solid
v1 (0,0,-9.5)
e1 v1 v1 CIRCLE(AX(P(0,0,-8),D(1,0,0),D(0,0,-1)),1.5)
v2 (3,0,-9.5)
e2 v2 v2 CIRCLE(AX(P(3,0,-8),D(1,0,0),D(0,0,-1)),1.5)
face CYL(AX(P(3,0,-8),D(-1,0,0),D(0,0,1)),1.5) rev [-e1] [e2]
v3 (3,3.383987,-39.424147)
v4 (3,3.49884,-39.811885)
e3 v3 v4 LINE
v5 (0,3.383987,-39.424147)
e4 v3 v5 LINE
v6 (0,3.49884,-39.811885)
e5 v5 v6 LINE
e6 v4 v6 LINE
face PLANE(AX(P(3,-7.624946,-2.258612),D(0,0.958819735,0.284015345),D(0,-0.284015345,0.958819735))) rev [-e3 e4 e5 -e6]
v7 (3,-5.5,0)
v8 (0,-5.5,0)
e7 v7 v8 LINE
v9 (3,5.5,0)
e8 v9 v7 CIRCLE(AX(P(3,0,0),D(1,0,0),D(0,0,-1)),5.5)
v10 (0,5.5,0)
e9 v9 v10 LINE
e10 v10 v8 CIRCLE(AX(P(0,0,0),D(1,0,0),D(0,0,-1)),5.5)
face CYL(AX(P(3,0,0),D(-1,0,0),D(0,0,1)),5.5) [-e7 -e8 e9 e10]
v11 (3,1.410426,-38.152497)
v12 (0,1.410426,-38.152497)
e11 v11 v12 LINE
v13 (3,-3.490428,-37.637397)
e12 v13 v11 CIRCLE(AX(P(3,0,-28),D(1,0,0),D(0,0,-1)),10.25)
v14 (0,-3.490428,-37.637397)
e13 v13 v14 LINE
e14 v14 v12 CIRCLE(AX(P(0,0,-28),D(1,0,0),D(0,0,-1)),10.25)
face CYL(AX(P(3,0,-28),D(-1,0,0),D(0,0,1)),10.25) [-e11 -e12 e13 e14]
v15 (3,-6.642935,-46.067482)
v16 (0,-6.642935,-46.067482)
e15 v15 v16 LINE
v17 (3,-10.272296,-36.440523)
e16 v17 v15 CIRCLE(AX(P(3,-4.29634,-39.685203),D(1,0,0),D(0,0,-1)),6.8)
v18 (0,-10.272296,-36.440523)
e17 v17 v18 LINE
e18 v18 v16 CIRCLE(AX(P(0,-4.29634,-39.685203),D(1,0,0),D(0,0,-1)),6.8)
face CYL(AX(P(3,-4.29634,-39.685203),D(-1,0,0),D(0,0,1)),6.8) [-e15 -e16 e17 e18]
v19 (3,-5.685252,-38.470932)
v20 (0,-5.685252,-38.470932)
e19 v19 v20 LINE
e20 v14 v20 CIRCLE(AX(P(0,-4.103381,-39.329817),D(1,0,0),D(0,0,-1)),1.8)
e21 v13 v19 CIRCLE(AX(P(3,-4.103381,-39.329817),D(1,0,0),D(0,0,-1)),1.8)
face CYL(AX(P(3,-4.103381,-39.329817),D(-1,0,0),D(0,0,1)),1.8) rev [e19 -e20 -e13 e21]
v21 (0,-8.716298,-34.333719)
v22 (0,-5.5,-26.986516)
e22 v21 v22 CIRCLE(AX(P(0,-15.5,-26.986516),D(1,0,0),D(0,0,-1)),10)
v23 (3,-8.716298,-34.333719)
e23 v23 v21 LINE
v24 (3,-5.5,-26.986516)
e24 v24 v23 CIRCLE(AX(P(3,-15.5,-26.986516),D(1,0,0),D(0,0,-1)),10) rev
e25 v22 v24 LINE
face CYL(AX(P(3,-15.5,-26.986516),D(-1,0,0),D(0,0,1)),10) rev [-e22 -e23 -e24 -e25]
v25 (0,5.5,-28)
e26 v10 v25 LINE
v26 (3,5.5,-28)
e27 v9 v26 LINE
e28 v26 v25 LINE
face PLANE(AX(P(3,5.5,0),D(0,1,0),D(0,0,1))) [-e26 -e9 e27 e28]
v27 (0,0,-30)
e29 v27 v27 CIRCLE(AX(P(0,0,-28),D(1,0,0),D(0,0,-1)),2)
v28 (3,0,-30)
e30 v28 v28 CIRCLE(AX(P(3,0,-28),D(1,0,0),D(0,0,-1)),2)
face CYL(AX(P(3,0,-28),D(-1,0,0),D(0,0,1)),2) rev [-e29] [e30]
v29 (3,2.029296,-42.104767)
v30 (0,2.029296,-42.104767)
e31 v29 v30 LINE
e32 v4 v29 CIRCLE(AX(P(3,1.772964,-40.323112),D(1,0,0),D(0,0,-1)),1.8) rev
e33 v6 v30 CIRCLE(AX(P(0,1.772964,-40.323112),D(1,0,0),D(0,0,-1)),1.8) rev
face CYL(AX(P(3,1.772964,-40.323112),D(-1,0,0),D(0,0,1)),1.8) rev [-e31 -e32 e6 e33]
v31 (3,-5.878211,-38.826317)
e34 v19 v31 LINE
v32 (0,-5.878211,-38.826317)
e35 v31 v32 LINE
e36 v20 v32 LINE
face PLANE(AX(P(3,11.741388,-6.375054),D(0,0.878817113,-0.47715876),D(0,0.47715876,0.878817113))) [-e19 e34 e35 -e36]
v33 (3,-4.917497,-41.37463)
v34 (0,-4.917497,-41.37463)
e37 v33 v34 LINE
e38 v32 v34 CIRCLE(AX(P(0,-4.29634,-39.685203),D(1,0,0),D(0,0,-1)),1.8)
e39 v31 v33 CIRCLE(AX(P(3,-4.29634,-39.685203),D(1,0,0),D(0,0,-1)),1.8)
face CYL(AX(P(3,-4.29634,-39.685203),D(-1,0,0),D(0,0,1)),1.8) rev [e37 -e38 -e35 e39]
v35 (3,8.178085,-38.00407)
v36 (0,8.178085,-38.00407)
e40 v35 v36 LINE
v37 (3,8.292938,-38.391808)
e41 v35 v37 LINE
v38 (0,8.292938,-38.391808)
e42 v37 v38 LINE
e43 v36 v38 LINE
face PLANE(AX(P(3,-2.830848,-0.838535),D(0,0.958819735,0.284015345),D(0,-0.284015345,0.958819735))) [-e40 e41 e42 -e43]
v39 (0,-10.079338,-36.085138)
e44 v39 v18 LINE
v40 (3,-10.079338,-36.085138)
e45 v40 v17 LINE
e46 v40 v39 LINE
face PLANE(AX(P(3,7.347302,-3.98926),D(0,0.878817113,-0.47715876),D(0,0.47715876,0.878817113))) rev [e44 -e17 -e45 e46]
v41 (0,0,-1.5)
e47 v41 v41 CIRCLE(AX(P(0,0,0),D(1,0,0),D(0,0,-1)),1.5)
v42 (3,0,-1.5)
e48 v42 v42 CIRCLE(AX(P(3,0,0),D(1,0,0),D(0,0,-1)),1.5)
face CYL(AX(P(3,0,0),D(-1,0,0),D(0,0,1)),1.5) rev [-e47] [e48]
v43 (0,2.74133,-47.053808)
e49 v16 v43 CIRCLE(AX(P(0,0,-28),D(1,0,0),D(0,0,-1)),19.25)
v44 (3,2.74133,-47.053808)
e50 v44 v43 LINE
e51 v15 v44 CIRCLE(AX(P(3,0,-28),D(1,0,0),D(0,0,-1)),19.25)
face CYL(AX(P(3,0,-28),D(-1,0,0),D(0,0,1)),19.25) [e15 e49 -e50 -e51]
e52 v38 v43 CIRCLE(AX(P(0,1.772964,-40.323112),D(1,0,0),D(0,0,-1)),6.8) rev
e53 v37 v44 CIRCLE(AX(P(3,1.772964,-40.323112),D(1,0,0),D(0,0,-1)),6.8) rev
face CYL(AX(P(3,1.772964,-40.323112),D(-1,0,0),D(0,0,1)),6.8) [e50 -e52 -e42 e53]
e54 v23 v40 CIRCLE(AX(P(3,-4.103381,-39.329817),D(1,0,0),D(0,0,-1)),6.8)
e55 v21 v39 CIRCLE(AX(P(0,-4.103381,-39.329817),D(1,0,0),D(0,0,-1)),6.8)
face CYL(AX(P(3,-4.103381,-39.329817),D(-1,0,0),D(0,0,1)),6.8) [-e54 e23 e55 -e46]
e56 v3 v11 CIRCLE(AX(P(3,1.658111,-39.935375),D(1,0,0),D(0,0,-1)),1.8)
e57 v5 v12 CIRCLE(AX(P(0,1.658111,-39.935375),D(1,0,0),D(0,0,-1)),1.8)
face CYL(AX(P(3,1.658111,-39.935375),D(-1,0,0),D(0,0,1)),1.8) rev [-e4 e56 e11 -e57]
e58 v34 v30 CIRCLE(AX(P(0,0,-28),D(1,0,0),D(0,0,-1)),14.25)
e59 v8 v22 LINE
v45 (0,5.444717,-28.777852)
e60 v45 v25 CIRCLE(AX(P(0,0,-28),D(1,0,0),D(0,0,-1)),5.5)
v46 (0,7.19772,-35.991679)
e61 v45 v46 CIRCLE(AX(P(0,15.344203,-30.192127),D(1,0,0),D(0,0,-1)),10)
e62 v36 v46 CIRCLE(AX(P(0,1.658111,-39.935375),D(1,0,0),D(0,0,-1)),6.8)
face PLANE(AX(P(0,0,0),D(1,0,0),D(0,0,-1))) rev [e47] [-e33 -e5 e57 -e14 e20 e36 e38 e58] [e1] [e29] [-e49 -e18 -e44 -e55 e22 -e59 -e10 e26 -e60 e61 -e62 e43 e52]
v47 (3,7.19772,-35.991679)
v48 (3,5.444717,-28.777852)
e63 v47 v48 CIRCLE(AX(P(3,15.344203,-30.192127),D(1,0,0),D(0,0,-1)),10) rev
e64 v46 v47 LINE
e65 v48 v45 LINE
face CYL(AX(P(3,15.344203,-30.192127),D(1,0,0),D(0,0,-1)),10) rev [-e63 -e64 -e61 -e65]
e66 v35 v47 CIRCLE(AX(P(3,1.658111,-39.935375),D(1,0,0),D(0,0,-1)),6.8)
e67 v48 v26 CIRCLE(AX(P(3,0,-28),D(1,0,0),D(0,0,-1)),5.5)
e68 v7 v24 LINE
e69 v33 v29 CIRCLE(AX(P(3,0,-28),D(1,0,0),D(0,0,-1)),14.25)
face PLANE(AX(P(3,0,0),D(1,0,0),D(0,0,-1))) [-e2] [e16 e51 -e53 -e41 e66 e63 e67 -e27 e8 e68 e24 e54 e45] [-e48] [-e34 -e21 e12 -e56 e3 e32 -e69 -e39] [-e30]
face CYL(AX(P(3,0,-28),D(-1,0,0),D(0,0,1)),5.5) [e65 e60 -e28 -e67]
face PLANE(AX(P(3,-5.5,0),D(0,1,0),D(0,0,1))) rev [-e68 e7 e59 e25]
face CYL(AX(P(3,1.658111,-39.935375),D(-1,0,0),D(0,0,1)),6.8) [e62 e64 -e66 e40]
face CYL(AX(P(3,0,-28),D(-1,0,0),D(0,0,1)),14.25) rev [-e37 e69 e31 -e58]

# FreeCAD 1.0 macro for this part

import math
import FreeCAD as App
import Part
import Sketcher
Q = App.Units.Quantity


def edges_at(feature, points):
    """Names of the edges that pass closest to the given points."""
    edges = feature.Shape.Edges
    near = lambda p: min(range(len(edges)), key=lambda i: edges[i].distToShape(Part.Vertex(*p))[0])
    return sorted({f"Edge{near(p) + 1}" for p in points})

doc = App.newDocument("Part")
body = doc.addObject("PartDesign::Body", "Body")

# Sketch on YZ plane
sketch1 = body.newObject("Sketcher::SketchObject", "Sketch")
sketch1.AttachmentSupport = (doc.getObject("YZ_Plane"), [""])
sketch1.MapMode = "FlatFace"
sketch1.addGeometry([
    Part.ArcOfCircle(Part.Circle(App.Vector(0, 0, 0), App.Vector(0, 0, 1), 5.5), math.radians(0), math.radians(180)),  # 0
    Part.LineSegment(App.Vector(-5.5, 0, 0), App.Vector(-5.5, -28, 0)),  # 1
    Part.ArcOfCircle(Part.Circle(App.Vector(0, -28, 0), App.Vector(0, 0, 1), 5.5), math.radians(180), math.radians(237.206171)),  # 2
    Part.ArcOfCircle(Part.Circle(App.Vector(-4.103381, -39.329817, 0), App.Vector(0, 0, 1), 6.8), math.radians(80.481544), math.radians(151.5)),  # 3
    Part.LineSegment(App.Vector(-10.079338, -36.085138, 0), App.Vector(-10.272296, -36.440523, 0)),  # 4
    Part.ArcOfCircle(Part.Circle(App.Vector(-4.29634, -39.685203, 0), App.Vector(0, 0, 1), 6.8), math.radians(151.5), math.radians(249.812861)),  # 5
    Part.ArcOfCircle(Part.Circle(App.Vector(0, -28, 0), App.Vector(0, 0, 1), 19.25), math.radians(-110.187139), math.radians(-81.812861)),  # 6
    Part.ArcOfCircle(Part.Circle(App.Vector(1.772964, -40.323112, 0), App.Vector(0, 0, 1), 6.8), math.radians(-81.812861), math.radians(16.5)),  # 7
    Part.LineSegment(App.Vector(8.292938, -38.391808, 0), App.Vector(8.178085, -38.00407, 0)),  # 8
    Part.ArcOfCircle(Part.Circle(App.Vector(1.658111, -39.935375, 0), App.Vector(0, 0, 1), 6.8), math.radians(16.5), math.radians(87.518456)),  # 9
    Part.ArcOfCircle(Part.Circle(App.Vector(0, -28, 0), App.Vector(0, 0, 1), 5.5), math.radians(-69.206171), math.radians(0)),  # 10
    Part.LineSegment(App.Vector(5.5, -28, 0), App.Vector(5.5, 0, 0)),  # 11
    Part.LineSegment(App.Vector(3.383987, -39.424147, 0), App.Vector(3.49884, -39.811885, 0)),  # 12
    Part.ArcOfCircle(Part.Circle(App.Vector(1.772964, -40.323112, 0), App.Vector(0, 0, 1), 1.8), math.radians(-81.812861), math.radians(16.5)),  # 13
    Part.ArcOfCircle(Part.Circle(App.Vector(0, -28, 0), App.Vector(0, 0, 1), 14.25), math.radians(-110.187139), math.radians(-81.812861)),  # 14
    Part.ArcOfCircle(Part.Circle(App.Vector(-4.29634, -39.685203, 0), App.Vector(0, 0, 1), 1.8), math.radians(151.5), math.radians(249.812861)),  # 15
    Part.LineSegment(App.Vector(-5.878211, -38.826317, 0), App.Vector(-5.685252, -38.470932, 0)),  # 16
    Part.ArcOfCircle(Part.Circle(App.Vector(-4.103381, -39.329817, 0), App.Vector(0, 0, 1), 1.8), math.radians(70.090859), math.radians(151.5)),  # 17
    Part.ArcOfCircle(Part.Circle(App.Vector(0, -28, 0), App.Vector(0, 0, 1), 10.25), math.radians(-109.909141), math.radians(-82.090859)),  # 18
    Part.ArcOfCircle(Part.Circle(App.Vector(1.658111, -39.935375, 0), App.Vector(0, 0, 1), 1.8), math.radians(16.5), math.radians(97.909141)),  # 19
    Part.Circle(App.Vector(0, -28, 0), App.Vector(0, 0, 1), 2),  # 20
    Part.Circle(App.Vector(0, -8, 0), App.Vector(0, 0, 1), 1.5),  # 21
    Part.Circle(App.Vector(0, 0, 0), App.Vector(0, 0, 1), 1.5),  # 22
], False)
sketch1.addConstraint([
    Sketcher.Constraint("Tangent", 0, 2, 1, 1),
    Sketcher.Constraint("Tangent", 1, 2, 2, 1),
    Sketcher.Constraint("Coincident", 2, 2, 3, 1),
    Sketcher.Constraint("Tangent", 3, 2, 4, 1),
    Sketcher.Constraint("Tangent", 4, 2, 5, 1),
    Sketcher.Constraint("Tangent", 5, 2, 6, 1),
    Sketcher.Constraint("Tangent", 6, 2, 7, 1),
    Sketcher.Constraint("Tangent", 7, 2, 8, 1),
    Sketcher.Constraint("Tangent", 8, 2, 9, 1),
    Sketcher.Constraint("Coincident", 9, 2, 10, 1),
    Sketcher.Constraint("Tangent", 10, 2, 11, 1),
    Sketcher.Constraint("Tangent", 11, 2, 0, 1),
    Sketcher.Constraint("Tangent", 12, 2, 13, 2),
    Sketcher.Constraint("Tangent", 13, 1, 14, 2),
    Sketcher.Constraint("Tangent", 14, 1, 15, 2),
    Sketcher.Constraint("Tangent", 15, 1, 16, 1),
    Sketcher.Constraint("Tangent", 16, 2, 17, 2),
    Sketcher.Constraint("Tangent", 17, 1, 18, 1),
    Sketcher.Constraint("Tangent", 18, 2, 19, 2),
    Sketcher.Constraint("Tangent", 19, 1, 12, 1),
    Sketcher.Constraint("Vertical", 1),
    Sketcher.Constraint("Vertical", 11),
    Sketcher.Constraint("Coincident", 0, 3, -1, 1),
    Sketcher.Constraint("Coincident", 22, 3, -1, 1),
    Sketcher.Constraint("Coincident", 6, 3, 2, 3),
    Sketcher.Constraint("Coincident", 10, 3, 2, 3),
    Sketcher.Constraint("Coincident", 13, 3, 7, 3),
    Sketcher.Constraint("Coincident", 14, 3, 2, 3),
    Sketcher.Constraint("Coincident", 15, 3, 5, 3),
    Sketcher.Constraint("Coincident", 17, 3, 3, 3),
    Sketcher.Constraint("Coincident", 18, 3, 2, 3),
    Sketcher.Constraint("Coincident", 19, 3, 9, 3),
    Sketcher.Constraint("Coincident", 20, 3, 2, 3),
    Sketcher.Constraint("Equal", 0, 2),
    Sketcher.Constraint("Equal", 3, 5),
    Sketcher.Constraint("Equal", 5, 7),
    Sketcher.Constraint("Equal", 7, 9),
    Sketcher.Constraint("Equal", 15, 17),
    Sketcher.Constraint("Equal", 17, 19),
    Sketcher.Constraint("Equal", 21, 22),
    Sketcher.Constraint("PointOnObject", 21, 3, -2),
    Sketcher.Constraint("Equal", 4, 8),
    Sketcher.Constraint("Diameter", 20, Q("4 mm")),
    Sketcher.Constraint("Diameter", 21, Q("3 mm")),
    Sketcher.Constraint("Radius", 0, Q("5.5 mm")),
    Sketcher.Constraint("Radius", 3, Q("6.8 mm")),
    Sketcher.Constraint("Radius", 13, Q("1.8 mm")),
    Sketcher.Constraint("DistanceY", 1, 2, 1, 1, Q("28 mm")),
    Sketcher.Constraint("Radius", 6, Q("19.25 mm")),
    Sketcher.Constraint("Radius", 18, Q("10.25 mm")),
    Sketcher.Constraint("DistanceY", 21, 3, -1, 1, Q("8 mm")),
    Sketcher.Constraint("Angle", 4, Q("-118.5 deg")),
    Sketcher.Constraint("Angle", 8, Q("106.5 deg")),
    Sketcher.Constraint("DistanceY", 6, 2, 7, 2, Q("8.662 mm")),
])
pad1 = body.newObject("PartDesign::Pad", "Pad")
pad1.Profile = sketch1
pad1.Length = 3
doc.recompute()

fillet = body.newObject("PartDesign::Fillet", "Fillet")
fillet.Base = (pad1, edges_at(pad1, [(1.5, -2.979, -32.623), (1.5, 1.953, -33.142)]))
fillet.Radius = 10

doc.recompute()
